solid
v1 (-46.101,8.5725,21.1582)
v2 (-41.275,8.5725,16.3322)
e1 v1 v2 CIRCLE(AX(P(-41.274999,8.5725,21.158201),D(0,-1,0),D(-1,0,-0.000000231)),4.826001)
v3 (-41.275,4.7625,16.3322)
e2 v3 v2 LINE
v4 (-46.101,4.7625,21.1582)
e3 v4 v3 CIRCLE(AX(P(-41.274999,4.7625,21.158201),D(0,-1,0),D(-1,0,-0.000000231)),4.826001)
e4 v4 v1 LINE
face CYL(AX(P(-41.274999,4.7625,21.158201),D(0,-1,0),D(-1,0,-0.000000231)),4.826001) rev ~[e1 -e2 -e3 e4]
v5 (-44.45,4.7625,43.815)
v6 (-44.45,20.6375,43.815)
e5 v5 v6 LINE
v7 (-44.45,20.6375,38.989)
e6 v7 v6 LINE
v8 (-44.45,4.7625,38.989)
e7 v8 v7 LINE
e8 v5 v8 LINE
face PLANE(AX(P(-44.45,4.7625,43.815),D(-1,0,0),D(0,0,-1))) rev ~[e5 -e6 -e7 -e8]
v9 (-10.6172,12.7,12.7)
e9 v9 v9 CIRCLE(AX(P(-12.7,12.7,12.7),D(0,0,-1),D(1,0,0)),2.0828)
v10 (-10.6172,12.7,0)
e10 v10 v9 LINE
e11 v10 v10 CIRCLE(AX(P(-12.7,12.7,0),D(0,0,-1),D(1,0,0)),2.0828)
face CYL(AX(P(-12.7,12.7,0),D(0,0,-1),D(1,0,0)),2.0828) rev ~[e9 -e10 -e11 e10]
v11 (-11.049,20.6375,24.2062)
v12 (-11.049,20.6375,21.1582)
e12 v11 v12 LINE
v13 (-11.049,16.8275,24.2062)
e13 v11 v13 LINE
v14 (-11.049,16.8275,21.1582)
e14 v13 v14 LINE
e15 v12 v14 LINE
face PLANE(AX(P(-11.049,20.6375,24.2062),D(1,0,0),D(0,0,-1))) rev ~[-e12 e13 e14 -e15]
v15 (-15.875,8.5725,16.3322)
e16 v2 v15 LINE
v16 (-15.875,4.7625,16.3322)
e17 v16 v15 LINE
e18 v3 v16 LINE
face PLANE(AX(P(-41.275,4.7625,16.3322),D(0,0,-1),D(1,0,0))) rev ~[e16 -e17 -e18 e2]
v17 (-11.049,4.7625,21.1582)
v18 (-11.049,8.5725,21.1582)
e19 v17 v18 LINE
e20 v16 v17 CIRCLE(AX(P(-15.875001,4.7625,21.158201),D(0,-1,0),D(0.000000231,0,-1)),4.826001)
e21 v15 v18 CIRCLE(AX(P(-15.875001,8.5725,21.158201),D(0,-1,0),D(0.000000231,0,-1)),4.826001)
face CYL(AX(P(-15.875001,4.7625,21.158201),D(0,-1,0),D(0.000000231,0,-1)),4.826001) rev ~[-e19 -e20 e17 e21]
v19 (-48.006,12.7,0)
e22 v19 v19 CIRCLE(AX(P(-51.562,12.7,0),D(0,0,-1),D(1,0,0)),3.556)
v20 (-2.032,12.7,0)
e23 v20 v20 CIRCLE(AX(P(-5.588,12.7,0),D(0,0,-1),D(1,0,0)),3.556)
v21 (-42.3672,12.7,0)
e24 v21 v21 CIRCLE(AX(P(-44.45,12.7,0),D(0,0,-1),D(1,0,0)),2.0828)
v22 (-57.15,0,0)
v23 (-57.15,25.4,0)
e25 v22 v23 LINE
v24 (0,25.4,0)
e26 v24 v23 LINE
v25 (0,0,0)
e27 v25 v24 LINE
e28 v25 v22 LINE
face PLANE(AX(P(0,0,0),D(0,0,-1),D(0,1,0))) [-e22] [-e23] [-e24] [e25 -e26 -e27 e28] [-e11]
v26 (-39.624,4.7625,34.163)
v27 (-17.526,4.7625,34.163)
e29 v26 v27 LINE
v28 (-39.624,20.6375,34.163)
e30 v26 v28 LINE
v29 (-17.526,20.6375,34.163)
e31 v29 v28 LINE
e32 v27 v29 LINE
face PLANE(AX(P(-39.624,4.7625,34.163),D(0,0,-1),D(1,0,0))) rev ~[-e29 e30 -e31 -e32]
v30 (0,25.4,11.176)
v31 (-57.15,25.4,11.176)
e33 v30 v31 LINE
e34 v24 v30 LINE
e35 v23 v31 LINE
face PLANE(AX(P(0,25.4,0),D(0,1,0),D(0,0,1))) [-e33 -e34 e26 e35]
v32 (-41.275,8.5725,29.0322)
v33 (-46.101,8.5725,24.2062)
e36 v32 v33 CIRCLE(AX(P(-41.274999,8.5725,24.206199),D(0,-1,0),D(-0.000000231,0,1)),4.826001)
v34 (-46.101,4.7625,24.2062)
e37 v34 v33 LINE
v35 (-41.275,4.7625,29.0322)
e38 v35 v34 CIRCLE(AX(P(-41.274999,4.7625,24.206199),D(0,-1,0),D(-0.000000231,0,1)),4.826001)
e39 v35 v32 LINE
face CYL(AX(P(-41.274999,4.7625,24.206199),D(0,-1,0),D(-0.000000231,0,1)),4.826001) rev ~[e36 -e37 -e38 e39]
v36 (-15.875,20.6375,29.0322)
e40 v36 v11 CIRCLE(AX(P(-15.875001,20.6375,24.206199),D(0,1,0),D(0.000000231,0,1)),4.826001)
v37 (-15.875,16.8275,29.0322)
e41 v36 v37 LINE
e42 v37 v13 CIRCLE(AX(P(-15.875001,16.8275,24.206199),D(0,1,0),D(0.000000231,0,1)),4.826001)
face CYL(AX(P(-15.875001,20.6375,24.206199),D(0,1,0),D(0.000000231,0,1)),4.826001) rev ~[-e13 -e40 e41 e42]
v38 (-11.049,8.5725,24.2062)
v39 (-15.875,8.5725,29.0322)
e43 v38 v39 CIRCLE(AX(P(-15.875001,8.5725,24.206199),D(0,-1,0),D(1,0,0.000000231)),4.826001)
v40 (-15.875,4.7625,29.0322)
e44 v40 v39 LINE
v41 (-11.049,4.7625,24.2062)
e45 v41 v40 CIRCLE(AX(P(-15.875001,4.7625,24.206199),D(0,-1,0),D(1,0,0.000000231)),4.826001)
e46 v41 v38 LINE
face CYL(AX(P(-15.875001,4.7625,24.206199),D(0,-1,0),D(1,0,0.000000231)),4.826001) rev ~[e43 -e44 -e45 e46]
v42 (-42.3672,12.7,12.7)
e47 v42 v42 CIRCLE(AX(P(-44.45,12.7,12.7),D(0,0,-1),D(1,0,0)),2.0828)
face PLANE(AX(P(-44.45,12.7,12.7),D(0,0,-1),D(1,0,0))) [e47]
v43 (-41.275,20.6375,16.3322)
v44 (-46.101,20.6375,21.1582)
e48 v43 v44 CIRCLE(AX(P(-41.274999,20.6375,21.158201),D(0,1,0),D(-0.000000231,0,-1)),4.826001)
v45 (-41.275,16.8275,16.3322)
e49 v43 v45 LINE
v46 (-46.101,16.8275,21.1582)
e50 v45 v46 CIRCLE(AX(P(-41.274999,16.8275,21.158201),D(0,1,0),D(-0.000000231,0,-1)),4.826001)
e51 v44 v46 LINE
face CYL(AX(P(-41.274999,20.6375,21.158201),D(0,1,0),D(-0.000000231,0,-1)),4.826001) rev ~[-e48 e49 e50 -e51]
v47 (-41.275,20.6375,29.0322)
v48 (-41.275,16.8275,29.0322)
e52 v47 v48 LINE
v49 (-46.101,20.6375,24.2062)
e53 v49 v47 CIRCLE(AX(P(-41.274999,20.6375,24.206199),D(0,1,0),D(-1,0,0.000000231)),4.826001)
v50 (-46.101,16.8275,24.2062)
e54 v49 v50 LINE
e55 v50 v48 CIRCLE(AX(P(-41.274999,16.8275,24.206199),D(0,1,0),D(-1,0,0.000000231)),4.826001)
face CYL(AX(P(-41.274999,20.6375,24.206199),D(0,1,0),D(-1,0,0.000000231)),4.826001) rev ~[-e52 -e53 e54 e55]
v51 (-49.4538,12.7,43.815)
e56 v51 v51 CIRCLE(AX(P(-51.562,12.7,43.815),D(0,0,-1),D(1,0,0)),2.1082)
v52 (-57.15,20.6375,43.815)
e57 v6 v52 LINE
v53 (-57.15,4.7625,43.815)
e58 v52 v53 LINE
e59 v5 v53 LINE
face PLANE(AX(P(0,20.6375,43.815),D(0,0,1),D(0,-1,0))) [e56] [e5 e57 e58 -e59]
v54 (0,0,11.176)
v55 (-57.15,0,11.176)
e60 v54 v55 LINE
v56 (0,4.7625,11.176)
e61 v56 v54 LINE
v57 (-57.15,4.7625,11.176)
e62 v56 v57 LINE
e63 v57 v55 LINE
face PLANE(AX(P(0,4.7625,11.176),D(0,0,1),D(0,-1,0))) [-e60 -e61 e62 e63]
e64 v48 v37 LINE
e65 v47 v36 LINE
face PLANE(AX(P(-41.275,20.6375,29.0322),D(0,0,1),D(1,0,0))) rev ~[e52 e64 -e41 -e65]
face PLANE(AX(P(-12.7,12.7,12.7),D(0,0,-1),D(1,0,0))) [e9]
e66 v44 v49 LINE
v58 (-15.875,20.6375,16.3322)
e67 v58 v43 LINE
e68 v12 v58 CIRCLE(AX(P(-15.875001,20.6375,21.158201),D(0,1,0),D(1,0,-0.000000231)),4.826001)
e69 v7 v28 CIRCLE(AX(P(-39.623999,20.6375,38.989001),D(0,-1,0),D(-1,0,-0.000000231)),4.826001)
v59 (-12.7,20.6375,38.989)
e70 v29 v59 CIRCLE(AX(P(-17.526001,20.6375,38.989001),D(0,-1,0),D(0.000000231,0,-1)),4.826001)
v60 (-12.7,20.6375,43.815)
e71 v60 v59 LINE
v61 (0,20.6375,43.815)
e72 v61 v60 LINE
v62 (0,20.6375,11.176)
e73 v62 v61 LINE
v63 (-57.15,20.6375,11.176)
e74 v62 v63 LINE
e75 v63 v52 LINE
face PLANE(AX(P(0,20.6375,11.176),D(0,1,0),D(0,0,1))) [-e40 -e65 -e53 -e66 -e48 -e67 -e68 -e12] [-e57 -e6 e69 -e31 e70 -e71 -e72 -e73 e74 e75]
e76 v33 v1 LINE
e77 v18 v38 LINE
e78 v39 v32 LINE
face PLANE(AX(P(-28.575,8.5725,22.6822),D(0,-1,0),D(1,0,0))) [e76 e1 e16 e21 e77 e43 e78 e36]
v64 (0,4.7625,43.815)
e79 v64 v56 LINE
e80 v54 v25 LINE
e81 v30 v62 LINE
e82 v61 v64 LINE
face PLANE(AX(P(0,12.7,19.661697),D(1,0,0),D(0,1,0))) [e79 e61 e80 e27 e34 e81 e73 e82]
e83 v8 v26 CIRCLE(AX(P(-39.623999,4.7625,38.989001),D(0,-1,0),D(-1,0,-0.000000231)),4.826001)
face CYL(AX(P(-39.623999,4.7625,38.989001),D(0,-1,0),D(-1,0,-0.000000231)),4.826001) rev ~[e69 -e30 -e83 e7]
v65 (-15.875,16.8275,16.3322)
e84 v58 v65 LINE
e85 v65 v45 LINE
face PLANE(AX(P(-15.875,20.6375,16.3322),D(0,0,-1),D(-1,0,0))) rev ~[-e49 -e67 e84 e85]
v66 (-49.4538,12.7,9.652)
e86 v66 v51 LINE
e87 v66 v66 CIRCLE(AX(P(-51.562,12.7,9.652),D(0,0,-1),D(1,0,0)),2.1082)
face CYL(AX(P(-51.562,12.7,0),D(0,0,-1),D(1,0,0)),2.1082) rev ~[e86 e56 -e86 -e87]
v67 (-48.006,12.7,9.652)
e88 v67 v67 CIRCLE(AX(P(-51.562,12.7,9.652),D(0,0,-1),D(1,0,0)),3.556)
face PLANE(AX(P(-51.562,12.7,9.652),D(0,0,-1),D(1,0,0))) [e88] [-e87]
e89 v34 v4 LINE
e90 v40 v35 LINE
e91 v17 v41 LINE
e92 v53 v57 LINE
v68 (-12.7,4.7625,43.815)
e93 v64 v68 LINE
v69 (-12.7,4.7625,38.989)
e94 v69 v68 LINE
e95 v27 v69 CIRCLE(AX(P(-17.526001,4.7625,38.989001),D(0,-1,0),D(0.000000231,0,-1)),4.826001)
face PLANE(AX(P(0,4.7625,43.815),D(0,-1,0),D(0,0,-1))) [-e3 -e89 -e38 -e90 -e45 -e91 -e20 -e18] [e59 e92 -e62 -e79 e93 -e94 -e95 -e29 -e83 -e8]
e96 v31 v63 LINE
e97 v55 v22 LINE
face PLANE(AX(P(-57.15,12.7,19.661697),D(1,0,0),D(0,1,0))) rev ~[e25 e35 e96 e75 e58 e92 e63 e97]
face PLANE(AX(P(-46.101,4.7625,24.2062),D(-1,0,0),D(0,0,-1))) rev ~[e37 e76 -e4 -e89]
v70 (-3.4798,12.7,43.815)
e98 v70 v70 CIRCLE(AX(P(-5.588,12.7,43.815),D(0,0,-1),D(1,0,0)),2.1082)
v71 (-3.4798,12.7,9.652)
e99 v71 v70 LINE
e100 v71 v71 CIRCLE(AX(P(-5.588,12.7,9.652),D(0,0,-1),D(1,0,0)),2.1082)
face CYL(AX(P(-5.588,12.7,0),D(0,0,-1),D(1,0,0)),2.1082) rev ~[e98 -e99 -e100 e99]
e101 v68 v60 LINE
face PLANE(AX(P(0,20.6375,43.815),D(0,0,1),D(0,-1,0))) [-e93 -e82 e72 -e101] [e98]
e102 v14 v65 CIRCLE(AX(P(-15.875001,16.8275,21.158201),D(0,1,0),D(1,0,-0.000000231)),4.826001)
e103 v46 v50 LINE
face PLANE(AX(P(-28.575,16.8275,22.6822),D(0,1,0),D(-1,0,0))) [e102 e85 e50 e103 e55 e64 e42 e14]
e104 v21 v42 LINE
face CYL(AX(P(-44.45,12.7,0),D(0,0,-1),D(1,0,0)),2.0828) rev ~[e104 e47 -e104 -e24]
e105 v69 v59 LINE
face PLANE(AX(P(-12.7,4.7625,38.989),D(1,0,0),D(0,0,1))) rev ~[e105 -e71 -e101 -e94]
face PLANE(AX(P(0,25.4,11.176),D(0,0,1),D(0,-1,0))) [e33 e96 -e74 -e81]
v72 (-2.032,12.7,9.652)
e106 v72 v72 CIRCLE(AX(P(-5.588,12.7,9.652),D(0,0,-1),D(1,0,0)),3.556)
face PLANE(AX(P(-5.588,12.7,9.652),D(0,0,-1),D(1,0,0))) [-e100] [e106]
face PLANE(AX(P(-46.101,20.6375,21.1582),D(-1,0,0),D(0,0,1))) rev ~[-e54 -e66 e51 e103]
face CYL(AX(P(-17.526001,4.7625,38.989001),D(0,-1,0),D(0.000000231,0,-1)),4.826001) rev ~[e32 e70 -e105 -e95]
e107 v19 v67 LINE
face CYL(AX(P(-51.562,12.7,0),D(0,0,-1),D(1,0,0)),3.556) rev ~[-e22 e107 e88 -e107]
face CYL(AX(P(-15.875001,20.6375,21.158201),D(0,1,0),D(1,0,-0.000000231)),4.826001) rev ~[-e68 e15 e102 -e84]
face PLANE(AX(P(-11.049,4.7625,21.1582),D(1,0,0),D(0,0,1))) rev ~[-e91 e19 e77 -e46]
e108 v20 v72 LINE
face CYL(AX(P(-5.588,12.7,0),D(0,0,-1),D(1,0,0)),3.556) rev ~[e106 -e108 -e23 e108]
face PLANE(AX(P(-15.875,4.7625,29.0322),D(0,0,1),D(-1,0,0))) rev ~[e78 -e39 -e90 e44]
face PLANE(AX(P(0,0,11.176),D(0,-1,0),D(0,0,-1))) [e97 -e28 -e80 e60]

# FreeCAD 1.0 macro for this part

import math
import FreeCAD as App
import Part
import Sketcher

V = App.Vector
Q = App.Units.Quantity


def add_polygon(sketch, points):
    """Adds a closed chain of lines whose ends are joined by coincident constraints."""
    first, n = sketch.GeometryCount, len(points)
    for a, b in zip(points, points[1:] + points[:1]):
        sketch.addGeometry(Part.LineSegment(App.Vector(*a, 0), App.Vector(*b, 0)), False)
    for i in range(n):
        sketch.addConstraint(Sketcher.Constraint("Coincident", first + i, 2, first + (i + 1) % n, 1))

doc = App.newDocument("Part")
body = doc.addObject("PartDesign::Body", "Body")

sketch1 = body.newObject("Sketcher::SketchObject", "Sketch")
sketch1.AttachmentSupport = (doc.getObject("YZ_Plane"), [""])
sketch1.MapMode = "FlatFace"
add_polygon(sketch1, [(0, 11.2), (0, 0), (25.4, 0), (25.4, 11.2), (20.6, 11.2), (20.6, 43.8), (4.8, 43.8), (4.8, 11.2)])
sketch1.addConstraint([
    Sketcher.Constraint("Vertical", 0),
    Sketcher.Constraint("Horizontal", 1),
    Sketcher.Constraint("Vertical", 2),
    Sketcher.Constraint("Horizontal", 3),
    Sketcher.Constraint("Vertical", 4),
    Sketcher.Constraint("Horizontal", 5),
    Sketcher.Constraint("Vertical", 6),
    Sketcher.Constraint("Horizontal", 7),
    Sketcher.Constraint("Coincident", 0, 2, -1, 1),
    Sketcher.Constraint("Horizontal", 3, 2, 6, 2),
    Sketcher.Constraint("Equal", 3, 7),
    Sketcher.Constraint("DistanceX", 1, 1, 1, 2, Q("1 in")),
    Sketcher.Constraint("DistanceY", 0, 2, 0, 1, Q("0.44 in")),
    Sketcher.Constraint("DistanceX", 3, 2, 3, 1, Q("0.1875 in")),
    Sketcher.Constraint("DistanceY", 4, 1, 4, 2, Q("1.285 in")),
])
pad1 = body.newObject("PartDesign::Pad", "Pad")
pad1.Profile = sketch1
pad1.Length = Q("2.25 in")
pad1.Reversed = True

sketch2 = body.newObject("Sketcher::SketchObject", "Sketch001")
sketch2.AttachmentSupport = (doc.getObject("XZ_Plane"), [""])
sketch2.MapMode = "FlatFace"
sketch2.AttachmentOffset = App.Placement(V(0, 0, -0.1875 * 25.4), App.Rotation())
sketch2.addGeometry([
    Part.LineSegment(V(-12.7, 43.8, 0), V(-44.5, 43.8, 0)),
    Part.LineSegment(V(-44.5, 43.8, 0), V(-44.5, 39, 0)),
    Part.ArcOfCircle(Part.Circle(V(-39.6, 39, 0), V(0, 0, 1), 4.8), math.radians(-180), math.radians(-90)),
    Part.LineSegment(V(-39.6, 34.2, 0), V(-17.5, 34.2, 0)),
    Part.ArcOfCircle(Part.Circle(V(-17.5, 39, 0), V(0, 0, 1), 4.8), math.radians(-90), math.radians(0)),
    Part.LineSegment(V(-12.7, 39, 0), V(-12.7, 43.8, 0)),
], False)
sketch2.addConstraint([
    Sketcher.Constraint("Coincident", 0, 2, 1, 1),
    Sketcher.Constraint("Tangent", 1, 2, 2, 1),
    Sketcher.Constraint("Tangent", 2, 2, 3, 1),
    Sketcher.Constraint("Tangent", 3, 2, 4, 1),
    Sketcher.Constraint("Tangent", 4, 2, 5, 1),
    Sketcher.Constraint("Coincident", 5, 2, 0, 1),
    Sketcher.Constraint("Horizontal", 0),
    Sketcher.Constraint("Vertical", 1),
    Sketcher.Constraint("Horizontal", 3),
    Sketcher.Constraint("Vertical", 5),
    Sketcher.Constraint("Equal", 2, 4),
    Sketcher.Constraint("Radius", 2, Q("0.19 in")),
    Sketcher.Constraint("DistanceX", 0, 2, 0, 1, Q("1.25 in")),
    Sketcher.Constraint("DistanceY", 1, 2, 1, 1, Q("0.19 in")),
    Sketcher.Constraint("DistanceX", 4, 2, -1, 1, Q("0.5 in")),
    Sketcher.Constraint("DistanceY", -1, 1, 2, 3, Q("1.535 in")),
])
pocket1 = body.newObject("PartDesign::Pocket", "Pocket")
pocket1.Profile = sketch2
pocket1.Length = Q("1 in")

sketch3 = body.newObject("Sketcher::SketchObject", "Sketch002")
sketch3.AttachmentSupport = (doc.getObject("XZ_Plane"), [""])
sketch3.MapMode = "FlatFace"
sketch3.AttachmentOffset = App.Placement(V(0, 0, -0.1875 * 25.4), App.Rotation())
sketch3.addGeometry([
    Part.LineSegment(V(-15.9, 29, 0), V(-41.3, 29, 0)),
    Part.ArcOfCircle(Part.Circle(V(-41.3, 24.2, 0), V(0, 0, 1), 4.8), math.radians(90), math.radians(180)),
    Part.LineSegment(V(-46.1, 24.2, 0), V(-46.1, 21.2, 0)),
    Part.ArcOfCircle(Part.Circle(V(-41.3, 21.2, 0), V(0, 0, 1), 4.8), math.radians(-180), math.radians(-90)),
    Part.LineSegment(V(-41.3, 16.3, 0), V(-15.9, 16.3, 0)),
    Part.ArcOfCircle(Part.Circle(V(-15.9, 21.2, 0), V(0, 0, 1), 4.8), math.radians(-90), math.radians(0)),
    Part.LineSegment(V(-11, 21.2, 0), V(-11, 24.2, 0)),
    Part.ArcOfCircle(Part.Circle(V(-15.9, 24.2, 0), V(0, 0, 1), 4.8), math.radians(0), math.radians(90)),
], False)
sketch3.addConstraint([
    Sketcher.Constraint("Tangent", 0, 2, 1, 1),
    Sketcher.Constraint("Tangent", 1, 2, 2, 1),
    Sketcher.Constraint("Tangent", 2, 2, 3, 1),
    Sketcher.Constraint("Tangent", 3, 2, 4, 1),
    Sketcher.Constraint("Tangent", 4, 2, 5, 1),
    Sketcher.Constraint("Tangent", 5, 2, 6, 1),
    Sketcher.Constraint("Tangent", 6, 2, 7, 1),
    Sketcher.Constraint("Tangent", 7, 2, 0, 1),
    Sketcher.Constraint("Horizontal", 0),
    Sketcher.Constraint("Vertical", 2),
    Sketcher.Constraint("Horizontal", 4),
    Sketcher.Constraint("Vertical", 6),
    Sketcher.Constraint("Equal", 1, 3),
    Sketcher.Constraint("Equal", 3, 5),
    Sketcher.Constraint("Equal", 5, 7),
    Sketcher.Constraint("DistanceX", 0, 2, 0, 1, Q("1 in")),
    Sketcher.Constraint("Radius", 1, Q("0.19 in")),
    Sketcher.Constraint("DistanceY", 2, 2, 2, 1, Q("0.12 in")),
    Sketcher.Constraint("DistanceX", 1, 3, -1, 1, Q("1.625 in")),
    Sketcher.Constraint("DistanceY", -1, 1, 1, 3, Q("0.953 in")),
])
pocket2 = body.newObject("PartDesign::Pocket", "Pocket001")
pocket2.Profile = sketch3
pocket2.Length = Q("0.15 in")

sketch4 = body.newObject("Sketcher::SketchObject", "Sketch003")
sketch4.AttachmentSupport = (doc.getObject("XZ_Plane"), [""])
sketch4.MapMode = "FlatFace"
sketch4.AttachmentOffset = App.Placement(V(0, 0, -0.8125 * 25.4), App.Rotation())
sketch4.addGeometry([
    Part.LineSegment(V(-41.3, 29, 0), V(-15.9, 29, 0)),
    Part.ArcOfCircle(Part.Circle(V(-15.9, 24.2, 0), V(0, 0, 1), 4.8), math.radians(0), math.radians(90)),
    Part.LineSegment(V(-11, 24.2, 0), V(-11, 21.2, 0)),
    Part.ArcOfCircle(Part.Circle(V(-15.9, 21.2, 0), V(0, 0, 1), 4.8), math.radians(-90), math.radians(0)),
    Part.LineSegment(V(-15.9, 16.3, 0), V(-41.3, 16.3, 0)),
    Part.ArcOfCircle(Part.Circle(V(-41.3, 21.2, 0), V(0, 0, 1), 4.8), math.radians(-180), math.radians(-90)),
    Part.LineSegment(V(-46.1, 21.2, 0), V(-46.1, 24.2, 0)),
    Part.ArcOfCircle(Part.Circle(V(-41.3, 24.2, 0), V(0, 0, 1), 4.8), math.radians(90), math.radians(180)),
], False)
sketch4.addConstraint([
    Sketcher.Constraint("Tangent", 0, 2, 1, 2),
    Sketcher.Constraint("Tangent", 1, 1, 2, 1),
    Sketcher.Constraint("Tangent", 2, 2, 3, 2),
    Sketcher.Constraint("Tangent", 3, 1, 4, 1),
    Sketcher.Constraint("Tangent", 4, 2, 5, 2),
    Sketcher.Constraint("Tangent", 5, 1, 6, 1),
    Sketcher.Constraint("Tangent", 6, 2, 7, 2),
    Sketcher.Constraint("Tangent", 7, 1, 0, 1),
    Sketcher.Constraint("Horizontal", 0),
    Sketcher.Constraint("Vertical", 2),
    Sketcher.Constraint("Horizontal", 4),
    Sketcher.Constraint("Vertical", 6),
    Sketcher.Constraint("Equal", 1, 3),
    Sketcher.Constraint("Equal", 3, 5),
    Sketcher.Constraint("Equal", 5, 7),
    Sketcher.Constraint("DistanceX", 0, 1, 0, 2, Q("1 in")),
    Sketcher.Constraint("Radius", 1, Q("0.19 in")),
    Sketcher.Constraint("DistanceY", 2, 2, 2, 1, Q("0.12 in")),
    Sketcher.Constraint("DistanceX", 1, 3, -1, 1, Q("0.625 in")),
    Sketcher.Constraint("DistanceY", -1, 1, 1, 3, Q("0.953 in")),
])
pocket3 = body.newObject("PartDesign::Pocket", "Pocket002")
pocket3.Profile = sketch4
pocket3.Length = Q("0.15 in")
pocket3.Reversed = True

sketch5 = body.newObject("Sketcher::SketchObject", "Sketch004")
sketch5.AttachmentSupport = (doc.getObject("XY_Plane"), [""])
sketch5.MapMode = "FlatFace"
sketch5.addGeometry([
    Part.Circle(V(-44.5, 12.7, 0), V(0, 0, 1), 2.1),
    Part.Circle(V(-12.7, 12.7, 0), V(0, 0, 1), 2.1),
], False)
sketch5.addConstraint([
    Sketcher.Constraint("Equal", 0, 1),
    Sketcher.Constraint("Horizontal", 0, 3, 1, 3),
    Sketcher.Constraint("Diameter", 0, Q("0.164 in")),
    Sketcher.Constraint("DistanceY", -1, 1, 0, 3, Q("0.5 in")),
    Sketcher.Constraint("DistanceX", 1, 3, -1, 1, Q("0.5 in")),
    Sketcher.Constraint("DistanceX", 0, 3, -1, 1, Q("1.75 in")),
])
pocket4 = body.newObject("PartDesign::Pocket", "Pocket003")
pocket4.Profile = sketch5
pocket4.Length = Q("0.5 in")
pocket4.Reversed = True

sketch6 = body.newObject("Sketcher::SketchObject", "Sketch005")
sketch6.AttachmentSupport = (doc.getObject("XY_Plane"), [""])
sketch6.MapMode = "FlatFace"
sketch6.addGeometry([
    Part.Circle(V(-51.6, 12.7, 0), V(0, 0, 1), 2.1),
    Part.Circle(V(-5.6, 12.7, 0), V(0, 0, 1), 2.1),
], False)
sketch6.addConstraint([
    Sketcher.Constraint("Equal", 0, 1),
    Sketcher.Constraint("Horizontal", 0, 3, 1, 3),
    Sketcher.Constraint("Diameter", 0, Q("0.166 in")),
    Sketcher.Constraint("DistanceY", -1, 1, 0, 3, Q("0.5 in")),
    Sketcher.Constraint("DistanceX", 0, 3, -1, 1, Q("2.03 in")),
    Sketcher.Constraint("DistanceX", 1, 3, -1, 1, Q("0.22 in")),
])
pocket5 = body.newObject("PartDesign::Pocket", "Pocket004")
pocket5.Profile = sketch6
pocket5.Type = "ThroughAll"
pocket5.Reversed = True

sketch7 = body.newObject("Sketcher::SketchObject", "Sketch006")
sketch7.AttachmentSupport = (doc.getObject("XY_Plane"), [""])
sketch7.MapMode = "FlatFace"
sketch7.addGeometry([
    Part.Circle(V(-51.6, 12.7, 0), V(0, 0, 1), 3.6),
    Part.Circle(V(-51.6, 12.7, 0), V(0, 0, 1), 2.1),
    Part.Circle(V(-5.6, 12.7, 0), V(0, 0, 1), 3.6),
    Part.Circle(V(-5.6, 12.7, 0), V(0, 0, 1), 2.1),
], False)
sketch7.addConstraint([
    Sketcher.Constraint("Coincident", 1, 3, 0, 3),
    Sketcher.Constraint("Coincident", 3, 3, 2, 3),
    Sketcher.Constraint("Equal", 0, 2),
    Sketcher.Constraint("Equal", 1, 3),
    Sketcher.Constraint("Horizontal", 1, 3, 2, 3),
    Sketcher.Constraint("Diameter", 0, Q("0.28 in")),
    Sketcher.Constraint("Diameter", 1, Q("0.166 in")),
    Sketcher.Constraint("DistanceY", -1, 1, 0, 3, Q("0.5 in")),
    Sketcher.Constraint("DistanceX", 0, 3, -1, 1, Q("2.03 in")),
    Sketcher.Constraint("DistanceX", 2, 3, -1, 1, Q("0.22 in")),
])
pocket6 = body.newObject("PartDesign::Pocket", "Pocket005")
pocket6.Profile = sketch7
pocket6.Length = Q("0.38 in")
pocket6.Reversed = True

doc.recompute()
